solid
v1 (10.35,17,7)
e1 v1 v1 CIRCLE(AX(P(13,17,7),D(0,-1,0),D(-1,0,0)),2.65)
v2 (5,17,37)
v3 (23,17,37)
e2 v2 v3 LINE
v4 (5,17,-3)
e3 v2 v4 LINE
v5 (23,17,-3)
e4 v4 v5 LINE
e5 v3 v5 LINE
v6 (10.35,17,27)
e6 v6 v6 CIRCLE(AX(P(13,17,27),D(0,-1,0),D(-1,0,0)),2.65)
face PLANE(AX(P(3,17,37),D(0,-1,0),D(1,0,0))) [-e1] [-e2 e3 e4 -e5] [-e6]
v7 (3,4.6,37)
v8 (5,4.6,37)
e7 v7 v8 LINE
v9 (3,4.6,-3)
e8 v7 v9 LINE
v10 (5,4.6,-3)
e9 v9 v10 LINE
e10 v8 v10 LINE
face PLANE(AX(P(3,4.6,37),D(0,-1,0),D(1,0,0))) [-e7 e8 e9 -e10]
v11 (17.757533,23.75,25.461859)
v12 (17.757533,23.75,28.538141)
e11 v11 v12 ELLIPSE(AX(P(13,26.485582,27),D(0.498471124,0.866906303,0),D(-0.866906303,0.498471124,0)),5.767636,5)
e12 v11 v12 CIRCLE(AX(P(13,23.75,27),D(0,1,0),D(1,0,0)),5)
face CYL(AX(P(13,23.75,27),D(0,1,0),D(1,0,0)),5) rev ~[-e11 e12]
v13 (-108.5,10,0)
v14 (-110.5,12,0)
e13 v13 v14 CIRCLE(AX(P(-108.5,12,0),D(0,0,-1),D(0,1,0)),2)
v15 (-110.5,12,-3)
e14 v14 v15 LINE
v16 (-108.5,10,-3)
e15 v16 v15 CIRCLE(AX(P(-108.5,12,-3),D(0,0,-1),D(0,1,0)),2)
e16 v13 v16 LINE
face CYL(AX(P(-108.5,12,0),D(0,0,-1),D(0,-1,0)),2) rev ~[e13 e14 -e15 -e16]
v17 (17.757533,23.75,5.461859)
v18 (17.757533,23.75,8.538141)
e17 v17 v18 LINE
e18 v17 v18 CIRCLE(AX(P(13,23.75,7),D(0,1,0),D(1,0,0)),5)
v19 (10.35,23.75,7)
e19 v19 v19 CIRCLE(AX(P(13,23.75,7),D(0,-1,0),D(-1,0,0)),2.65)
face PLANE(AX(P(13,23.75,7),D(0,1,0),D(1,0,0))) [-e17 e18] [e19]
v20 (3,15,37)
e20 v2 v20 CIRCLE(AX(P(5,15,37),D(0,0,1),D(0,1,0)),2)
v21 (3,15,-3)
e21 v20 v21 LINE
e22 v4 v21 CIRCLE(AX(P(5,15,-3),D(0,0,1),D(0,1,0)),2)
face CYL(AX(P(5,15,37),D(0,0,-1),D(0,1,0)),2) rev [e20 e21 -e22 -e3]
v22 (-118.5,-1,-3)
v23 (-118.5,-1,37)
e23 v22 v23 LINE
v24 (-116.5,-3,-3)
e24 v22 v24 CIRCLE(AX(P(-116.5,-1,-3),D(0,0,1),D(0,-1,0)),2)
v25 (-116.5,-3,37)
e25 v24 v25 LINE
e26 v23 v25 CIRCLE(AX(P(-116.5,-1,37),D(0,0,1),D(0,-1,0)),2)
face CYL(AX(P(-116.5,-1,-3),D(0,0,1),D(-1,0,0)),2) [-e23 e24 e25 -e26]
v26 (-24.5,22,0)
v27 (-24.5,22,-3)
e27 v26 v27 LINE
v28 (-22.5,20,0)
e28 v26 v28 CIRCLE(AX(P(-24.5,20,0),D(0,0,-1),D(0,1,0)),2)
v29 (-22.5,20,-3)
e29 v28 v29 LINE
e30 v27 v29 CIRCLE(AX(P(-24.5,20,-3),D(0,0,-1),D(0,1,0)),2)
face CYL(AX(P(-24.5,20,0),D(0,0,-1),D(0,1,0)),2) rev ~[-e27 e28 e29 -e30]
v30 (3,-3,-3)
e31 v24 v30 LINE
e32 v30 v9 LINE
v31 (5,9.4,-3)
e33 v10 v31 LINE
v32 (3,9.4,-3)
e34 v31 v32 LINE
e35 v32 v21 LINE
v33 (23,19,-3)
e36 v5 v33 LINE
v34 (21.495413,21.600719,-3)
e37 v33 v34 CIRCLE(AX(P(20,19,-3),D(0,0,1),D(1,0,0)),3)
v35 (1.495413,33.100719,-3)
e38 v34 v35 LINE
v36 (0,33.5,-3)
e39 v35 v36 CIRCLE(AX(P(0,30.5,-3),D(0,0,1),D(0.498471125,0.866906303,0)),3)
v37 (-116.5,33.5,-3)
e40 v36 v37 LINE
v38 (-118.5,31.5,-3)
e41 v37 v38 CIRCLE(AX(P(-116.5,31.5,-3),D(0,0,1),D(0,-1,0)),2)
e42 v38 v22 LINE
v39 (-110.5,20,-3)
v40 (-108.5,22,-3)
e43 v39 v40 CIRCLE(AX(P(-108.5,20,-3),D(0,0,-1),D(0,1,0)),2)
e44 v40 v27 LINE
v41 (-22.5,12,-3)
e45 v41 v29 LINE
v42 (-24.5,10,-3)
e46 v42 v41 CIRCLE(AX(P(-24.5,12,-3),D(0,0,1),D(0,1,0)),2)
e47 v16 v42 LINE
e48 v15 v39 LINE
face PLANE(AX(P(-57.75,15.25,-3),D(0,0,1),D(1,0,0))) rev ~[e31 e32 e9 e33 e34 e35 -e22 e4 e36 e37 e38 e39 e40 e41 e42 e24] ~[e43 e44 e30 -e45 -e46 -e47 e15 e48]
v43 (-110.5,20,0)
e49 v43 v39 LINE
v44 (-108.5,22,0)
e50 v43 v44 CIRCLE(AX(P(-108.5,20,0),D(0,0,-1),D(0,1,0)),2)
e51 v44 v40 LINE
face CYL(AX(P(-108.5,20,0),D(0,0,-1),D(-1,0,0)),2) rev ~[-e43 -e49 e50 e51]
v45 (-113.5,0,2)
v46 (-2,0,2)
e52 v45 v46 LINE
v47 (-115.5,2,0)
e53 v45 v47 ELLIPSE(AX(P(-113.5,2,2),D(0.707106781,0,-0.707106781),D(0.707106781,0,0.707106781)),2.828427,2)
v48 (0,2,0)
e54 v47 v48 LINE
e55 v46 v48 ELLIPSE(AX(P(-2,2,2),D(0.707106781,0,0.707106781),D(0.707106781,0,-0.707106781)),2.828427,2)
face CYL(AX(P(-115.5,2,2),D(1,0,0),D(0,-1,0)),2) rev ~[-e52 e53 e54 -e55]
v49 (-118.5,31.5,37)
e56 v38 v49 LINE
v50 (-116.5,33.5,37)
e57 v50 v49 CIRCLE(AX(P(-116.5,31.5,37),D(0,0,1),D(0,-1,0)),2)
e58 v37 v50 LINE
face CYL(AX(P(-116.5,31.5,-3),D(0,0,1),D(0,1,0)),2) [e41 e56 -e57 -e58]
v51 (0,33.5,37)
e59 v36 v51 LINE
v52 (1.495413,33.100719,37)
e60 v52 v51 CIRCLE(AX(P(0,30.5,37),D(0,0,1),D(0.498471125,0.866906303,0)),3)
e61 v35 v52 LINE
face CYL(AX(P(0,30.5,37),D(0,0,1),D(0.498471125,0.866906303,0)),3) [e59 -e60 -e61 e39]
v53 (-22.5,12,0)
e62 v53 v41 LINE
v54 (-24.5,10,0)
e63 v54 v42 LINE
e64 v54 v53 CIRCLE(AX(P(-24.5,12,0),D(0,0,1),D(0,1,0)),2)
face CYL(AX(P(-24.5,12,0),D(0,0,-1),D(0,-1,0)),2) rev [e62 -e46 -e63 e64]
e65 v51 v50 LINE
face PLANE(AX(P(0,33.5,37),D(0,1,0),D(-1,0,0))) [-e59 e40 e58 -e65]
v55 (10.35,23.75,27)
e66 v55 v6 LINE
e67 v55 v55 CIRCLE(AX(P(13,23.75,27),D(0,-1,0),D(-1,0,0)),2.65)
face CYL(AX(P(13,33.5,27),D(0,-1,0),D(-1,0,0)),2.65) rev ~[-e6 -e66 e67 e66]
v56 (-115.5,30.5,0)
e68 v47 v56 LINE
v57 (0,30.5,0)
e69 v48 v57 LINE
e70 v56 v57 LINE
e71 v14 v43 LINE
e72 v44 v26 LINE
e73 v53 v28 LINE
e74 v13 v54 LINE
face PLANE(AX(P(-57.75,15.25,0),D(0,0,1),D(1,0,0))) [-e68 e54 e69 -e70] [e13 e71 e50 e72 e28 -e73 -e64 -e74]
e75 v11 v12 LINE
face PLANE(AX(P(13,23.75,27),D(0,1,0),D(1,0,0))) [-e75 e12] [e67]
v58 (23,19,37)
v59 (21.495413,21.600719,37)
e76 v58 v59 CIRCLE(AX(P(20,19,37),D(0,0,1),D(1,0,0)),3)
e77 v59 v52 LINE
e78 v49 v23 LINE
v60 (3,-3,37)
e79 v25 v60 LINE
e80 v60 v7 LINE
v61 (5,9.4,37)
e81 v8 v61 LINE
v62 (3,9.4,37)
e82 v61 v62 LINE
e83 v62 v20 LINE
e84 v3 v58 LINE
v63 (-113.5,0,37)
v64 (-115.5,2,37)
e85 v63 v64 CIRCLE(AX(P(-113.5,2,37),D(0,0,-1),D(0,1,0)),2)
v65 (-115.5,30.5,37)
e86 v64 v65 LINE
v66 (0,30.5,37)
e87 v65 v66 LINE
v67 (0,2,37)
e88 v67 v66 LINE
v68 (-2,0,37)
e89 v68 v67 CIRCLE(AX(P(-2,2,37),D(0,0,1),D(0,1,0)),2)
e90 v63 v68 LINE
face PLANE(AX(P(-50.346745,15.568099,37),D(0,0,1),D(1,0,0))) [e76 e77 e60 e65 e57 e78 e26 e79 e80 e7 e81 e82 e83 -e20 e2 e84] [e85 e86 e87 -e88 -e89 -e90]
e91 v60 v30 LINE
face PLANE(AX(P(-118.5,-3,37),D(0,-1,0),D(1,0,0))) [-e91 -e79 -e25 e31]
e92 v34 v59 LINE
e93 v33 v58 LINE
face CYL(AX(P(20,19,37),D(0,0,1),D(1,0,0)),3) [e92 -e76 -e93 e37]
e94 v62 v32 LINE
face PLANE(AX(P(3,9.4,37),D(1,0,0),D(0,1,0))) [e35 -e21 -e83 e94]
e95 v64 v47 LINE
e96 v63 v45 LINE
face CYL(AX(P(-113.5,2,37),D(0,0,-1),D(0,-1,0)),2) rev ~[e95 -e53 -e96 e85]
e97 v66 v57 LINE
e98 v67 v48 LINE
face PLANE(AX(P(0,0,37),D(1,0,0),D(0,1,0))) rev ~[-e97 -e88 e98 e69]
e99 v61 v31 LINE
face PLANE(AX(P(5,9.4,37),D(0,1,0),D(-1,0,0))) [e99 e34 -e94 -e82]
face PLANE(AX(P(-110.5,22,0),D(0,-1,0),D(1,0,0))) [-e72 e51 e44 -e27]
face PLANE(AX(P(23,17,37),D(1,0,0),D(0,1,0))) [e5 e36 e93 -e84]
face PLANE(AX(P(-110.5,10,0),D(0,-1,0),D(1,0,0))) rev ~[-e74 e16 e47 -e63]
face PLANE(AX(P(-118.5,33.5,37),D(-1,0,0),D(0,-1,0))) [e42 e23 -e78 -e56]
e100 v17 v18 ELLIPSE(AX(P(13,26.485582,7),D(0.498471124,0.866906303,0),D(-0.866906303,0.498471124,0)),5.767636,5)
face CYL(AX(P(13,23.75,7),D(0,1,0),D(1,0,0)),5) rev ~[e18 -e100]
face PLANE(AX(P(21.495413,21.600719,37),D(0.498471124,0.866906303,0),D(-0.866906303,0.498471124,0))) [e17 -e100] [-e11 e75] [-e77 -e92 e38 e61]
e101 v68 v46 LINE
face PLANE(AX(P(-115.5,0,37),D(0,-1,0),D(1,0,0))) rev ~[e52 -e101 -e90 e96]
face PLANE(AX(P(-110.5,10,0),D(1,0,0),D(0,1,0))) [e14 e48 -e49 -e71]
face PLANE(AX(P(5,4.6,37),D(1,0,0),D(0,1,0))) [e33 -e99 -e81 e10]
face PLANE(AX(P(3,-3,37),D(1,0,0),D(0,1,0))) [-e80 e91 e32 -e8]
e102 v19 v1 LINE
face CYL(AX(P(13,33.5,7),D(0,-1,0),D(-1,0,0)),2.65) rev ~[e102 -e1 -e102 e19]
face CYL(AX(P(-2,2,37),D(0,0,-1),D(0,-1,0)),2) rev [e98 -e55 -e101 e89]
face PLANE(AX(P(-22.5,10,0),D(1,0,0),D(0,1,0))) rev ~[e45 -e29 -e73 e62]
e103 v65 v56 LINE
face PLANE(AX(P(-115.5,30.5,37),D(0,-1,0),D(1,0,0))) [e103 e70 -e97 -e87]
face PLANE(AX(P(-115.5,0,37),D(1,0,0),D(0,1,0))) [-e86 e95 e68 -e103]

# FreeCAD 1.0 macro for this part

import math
import FreeCAD as App
import Part
import Sketcher
from FreeCAD import Vector


def edges_at(feature, points):
    """Names of the edges that pass closest to the given points."""
    edges = feature.Shape.Edges
    near = lambda p: min(range(len(edges)), key=lambda i: edges[i].distToShape(Part.Vertex(*p))[0])
    return sorted({f"Edge{near(p) + 1}" for p in points})


def add_polygon(sketch, points):
    """Adds a closed chain of lines whose ends are joined by coincident constraints."""
    first, n = sketch.GeometryCount, len(points)
    for a, b in zip(points, points[1:] + points[:1]):
        sketch.addGeometry(Part.LineSegment(App.Vector(*a, 0), App.Vector(*b, 0)), False)
    for i in range(n):
        sketch.addConstraint(Sketcher.Constraint("Coincident", first + i, 2, first + (i + 1) % n, 1))

doc = App.newDocument("Part")
body = doc.addObject("PartDesign::Body", "Body")

sketch1 = body.newObject("Sketcher::SketchObject", "Sketch")
sketch1.AttachmentSupport = (doc.getObject("XY_Plane"), [""])
sketch1.MapMode = "FlatFace"
sketch1.addGeometry(Part.LineSegment(Vector(23, 17, 0), Vector(23, 19, 0)), False)
sketch1.addGeometry(Part.ArcOfCircle(Part.Circle(Vector(20, 19, 0), Vector(0, 0, 1), 3), math.radians(0), math.radians(60)), False)
sketch1.addGeometry(Part.LineSegment(Vector(21.5, 21.6, 0), Vector(1.5, 33.1, 0)), False)
sketch1.addGeometry(Part.ArcOfCircle(Part.Circle(Vector(0, 30.5, 0), Vector(0, 0, 1), 3), math.radians(60), math.radians(90)), False)
sketch1.addGeometry(Part.LineSegment(Vector(0, 33.5, 0), Vector(-118.5, 33.5, 0)), False)
sketch1.addGeometry(Part.LineSegment(Vector(-118.5, 33.5, 0), Vector(-118.5, -3, 0)), False)
sketch1.addGeometry(Part.LineSegment(Vector(-118.5, -3, 0), Vector(3, -3, 0)), False)
sketch1.addGeometry(Part.LineSegment(Vector(3, -3, 0), Vector(3, 4.6, 0)), False)
sketch1.addGeometry(Part.LineSegment(Vector(3, 4.6, 0), Vector(5, 4.6, 0)), False)
sketch1.addGeometry(Part.LineSegment(Vector(5, 4.6, 0), Vector(5, 9.4, 0)), False)
sketch1.addGeometry(Part.LineSegment(Vector(5, 9.4, 0), Vector(3, 9.4, 0)), False)
sketch1.addGeometry(Part.LineSegment(Vector(3, 9.4, 0), Vector(3, 17, 0)), False)
sketch1.addGeometry(Part.LineSegment(Vector(3, 17, 0), Vector(23, 17, 0)), False)
add_polygon(sketch1, [(-22.5, 10), (-110.5, 10), (-110.5, 22), (-22.5, 22)])
sketch1.addConstraint(Sketcher.Constraint("Tangent", 0, 2, 1, 1))
sketch1.addConstraint(Sketcher.Constraint("Tangent", 1, 2, 2, 1))
sketch1.addConstraint(Sketcher.Constraint("Tangent", 2, 2, 3, 1))
sketch1.addConstraint(Sketcher.Constraint("Tangent", 3, 2, 4, 1))
sketch1.addConstraint(Sketcher.Constraint("Coincident", 4, 2, 5, 1))
sketch1.addConstraint(Sketcher.Constraint("Coincident", 5, 2, 6, 1))
sketch1.addConstraint(Sketcher.Constraint("Coincident", 6, 2, 7, 1))
sketch1.addConstraint(Sketcher.Constraint("Coincident", 7, 2, 8, 1))
sketch1.addConstraint(Sketcher.Constraint("Coincident", 8, 2, 9, 1))
sketch1.addConstraint(Sketcher.Constraint("Coincident", 9, 2, 10, 1))
sketch1.addConstraint(Sketcher.Constraint("Coincident", 10, 2, 11, 1))
sketch1.addConstraint(Sketcher.Constraint("Coincident", 11, 2, 12, 1))
sketch1.addConstraint(Sketcher.Constraint("Coincident", 12, 2, 0, 1))
sketch1.addConstraint(Sketcher.Constraint("Vertical", 0))
sketch1.addConstraint(Sketcher.Constraint("Horizontal", 4))
sketch1.addConstraint(Sketcher.Constraint("Vertical", 5))
sketch1.addConstraint(Sketcher.Constraint("Horizontal", 6))
sketch1.addConstraint(Sketcher.Constraint("Vertical", 7))
sketch1.addConstraint(Sketcher.Constraint("Horizontal", 8))
sketch1.addConstraint(Sketcher.Constraint("Vertical", 9))
sketch1.addConstraint(Sketcher.Constraint("Horizontal", 10))
sketch1.addConstraint(Sketcher.Constraint("Vertical", 11))
sketch1.addConstraint(Sketcher.Constraint("Horizontal", 12))
sketch1.addConstraint(Sketcher.Constraint("Horizontal", 13))
sketch1.addConstraint(Sketcher.Constraint("Vertical", 14))
sketch1.addConstraint(Sketcher.Constraint("Horizontal", 15))
sketch1.addConstraint(Sketcher.Constraint("Vertical", 16))
sketch1.addConstraint(Sketcher.Constraint("Equal", 1, 3))
sketch1.addConstraint(Sketcher.Constraint("PointOnObject", 3, 3, -2))
sketch1.addConstraint(Sketcher.Constraint("Vertical", 7, 2, 10, 2))
sketch1.addConstraint(Sketcher.Constraint("Equal", 10, 0))
sketch1.addConstraint(Sketcher.Constraint("Equal", 7, 11))
sketch1.addConstraint(Sketcher.Constraint("Radius", 1, 3.0))
sketch1.addConstraint(Sketcher.Constraint("DistanceX", 8, 1, 8, 2, 2.0))
sketch1.addConstraint(Sketcher.Constraint("DistanceX", 12, 1, 12, 2, 20.0))
sketch1.addConstraint(Sketcher.Constraint("DistanceX", 13, 2, 13, 1, 88.0))
sketch1.addConstraint(Sketcher.Constraint("DistanceY", 14, 1, 14, 2, 12.0))
sketch1.addConstraint(Sketcher.Constraint("DistanceX", 4, 2, 4, 1, 118.5))
sketch1.addConstraint(Sketcher.Constraint("DistanceX", 6, 1, 6, 2, 121.5))
sketch1.addConstraint(Sketcher.Constraint("DistanceY", 5, 2, 5, 1, 36.5))
sketch1.addConstraint(Sketcher.Constraint("DistanceY", 7, 1, 7, 2, 7.6))
sketch1.addConstraint(Sketcher.Constraint("DistanceY", 9, 1, 9, 2, 4.8))
sketch1.addConstraint(Sketcher.Constraint("DistanceY", -1, 1, 1, 3, 19.0))
sketch1.addConstraint(Sketcher.Constraint("DistanceY", -1, 1, 13, 2, 10.0))
sketch1.addConstraint(Sketcher.Constraint("DistanceX", 5, 2, 13, 2, 8.0))
pad1 = body.newObject("PartDesign::Pad", "Pad")
pad1.Profile = sketch1
pad1.Length = 3
pad1.Reversed = True

sketch2 = body.newObject("Sketcher::SketchObject", "Sketch001")
sketch2.AttachmentSupport = (doc.getObject("XY_Plane"), [""])
sketch2.MapMode = "FlatFace"
sketch2.AttachmentOffset = App.Placement(Vector(0, 0, 37), App.Rotation())
sketch2.addGeometry(Part.LineSegment(Vector(23, 17, 0), Vector(23, 19, 0)), False)
sketch2.addGeometry(Part.ArcOfCircle(Part.Circle(Vector(20, 19, 0), Vector(0, 0, 1), 3), math.radians(0), math.radians(60)), False)
sketch2.addGeometry(Part.LineSegment(Vector(21.5, 21.6, 0), Vector(1.5, 33.1, 0)), False)
sketch2.addGeometry(Part.ArcOfCircle(Part.Circle(Vector(0, 30.5, 0), Vector(0, 0, 1), 3), math.radians(60), math.radians(90)), False)
sketch2.addGeometry(Part.LineSegment(Vector(0, 33.5, 0), Vector(-118.5, 33.5, 0)), False)
sketch2.addGeometry(Part.LineSegment(Vector(-118.5, 33.5, 0), Vector(-118.5, -3, 0)), False)
sketch2.addGeometry(Part.LineSegment(Vector(-118.5, -3, 0), Vector(3, -3, 0)), False)
sketch2.addGeometry(Part.LineSegment(Vector(3, -3, 0), Vector(3, 4.6, 0)), False)
sketch2.addGeometry(Part.LineSegment(Vector(3, 4.6, 0), Vector(5, 4.6, 0)), False)
sketch2.addGeometry(Part.LineSegment(Vector(5, 4.6, 0), Vector(5, 9.4, 0)), False)
sketch2.addGeometry(Part.LineSegment(Vector(5, 9.4, 0), Vector(3, 9.4, 0)), False)
sketch2.addGeometry(Part.LineSegment(Vector(3, 9.4, 0), Vector(3, 17, 0)), False)
sketch2.addGeometry(Part.LineSegment(Vector(3, 17, 0), Vector(23, 17, 0)), False)
add_polygon(sketch2, [(0, 0), (-115.5, 0), (-115.5, 30.5), (0, 30.5)])
sketch2.addConstraint(Sketcher.Constraint("Tangent", 0, 2, 1, 1))
sketch2.addConstraint(Sketcher.Constraint("Tangent", 1, 2, 2, 1))
sketch2.addConstraint(Sketcher.Constraint("Tangent", 2, 2, 3, 1))
sketch2.addConstraint(Sketcher.Constraint("Tangent", 3, 2, 4, 1))
sketch2.addConstraint(Sketcher.Constraint("Coincident", 4, 2, 5, 1))
sketch2.addConstraint(Sketcher.Constraint("Coincident", 5, 2, 6, 1))
sketch2.addConstraint(Sketcher.Constraint("Coincident", 6, 2, 7, 1))
sketch2.addConstraint(Sketcher.Constraint("Coincident", 7, 2, 8, 1))
sketch2.addConstraint(Sketcher.Constraint("Coincident", 8, 2, 9, 1))
sketch2.addConstraint(Sketcher.Constraint("Coincident", 9, 2, 10, 1))
sketch2.addConstraint(Sketcher.Constraint("Coincident", 10, 2, 11, 1))
sketch2.addConstraint(Sketcher.Constraint("Coincident", 11, 2, 12, 1))
sketch2.addConstraint(Sketcher.Constraint("Coincident", 12, 2, 0, 1))
sketch2.addConstraint(Sketcher.Constraint("Vertical", 0))
sketch2.addConstraint(Sketcher.Constraint("Horizontal", 4))
sketch2.addConstraint(Sketcher.Constraint("Vertical", 5))
sketch2.addConstraint(Sketcher.Constraint("Horizontal", 6))
sketch2.addConstraint(Sketcher.Constraint("Vertical", 7))
sketch2.addConstraint(Sketcher.Constraint("Horizontal", 8))
sketch2.addConstraint(Sketcher.Constraint("Vertical", 9))
sketch2.addConstraint(Sketcher.Constraint("Horizontal", 10))
sketch2.addConstraint(Sketcher.Constraint("Vertical", 11))
sketch2.addConstraint(Sketcher.Constraint("Horizontal", 12))
sketch2.addConstraint(Sketcher.Constraint("Horizontal", 13))
sketch2.addConstraint(Sketcher.Constraint("Vertical", 14))
sketch2.addConstraint(Sketcher.Constraint("Horizontal", 15))
sketch2.addConstraint(Sketcher.Constraint("Vertical", 16))
sketch2.addConstraint(Sketcher.Constraint("Coincident", 16, 2, -1, 1))
sketch2.addConstraint(Sketcher.Constraint("Coincident", 15, 2, 3, 3))
sketch2.addConstraint(Sketcher.Constraint("Equal", 1, 3))
sketch2.addConstraint(Sketcher.Constraint("Vertical", 7, 2, 10, 2))
sketch2.addConstraint(Sketcher.Constraint("Equal", 10, 0))
sketch2.addConstraint(Sketcher.Constraint("Equal", 7, 11))
sketch2.addConstraint(Sketcher.Constraint("Radius", 1, 3.0))
sketch2.addConstraint(Sketcher.Constraint("DistanceX", 8, 1, 8, 2, 2.0))
sketch2.addConstraint(Sketcher.Constraint("DistanceX", 12, 1, 12, 2, 20.0))
sketch2.addConstraint(Sketcher.Constraint("DistanceX", 4, 2, 4, 1, 118.5))
sketch2.addConstraint(Sketcher.Constraint("DistanceX", 6, 1, 6, 2, 121.5))
sketch2.addConstraint(Sketcher.Constraint("DistanceX", 13, 2, 13, 1, 115.5))
sketch2.addConstraint(Sketcher.Constraint("DistanceY", 5, 2, 5, 1, 36.5))
sketch2.addConstraint(Sketcher.Constraint("DistanceY", 7, 1, 7, 2, 7.6))
sketch2.addConstraint(Sketcher.Constraint("DistanceY", 9, 1, 9, 2, 4.8))
sketch2.addConstraint(Sketcher.Constraint("DistanceY", 14, 1, 14, 2, 30.5))
pad2 = body.newObject("PartDesign::Pad", "Pad001")
pad2.Profile = sketch2
pad2.Length = 37
pad2.Reversed = True

sketch3 = body.newObject("Sketcher::SketchObject", "Sketch002")
sketch3.AttachmentSupport = (doc.getObject("XZ_Plane"), [""])
sketch3.MapMode = "FlatFace"
sketch3.AttachmentOffset = App.Placement(Vector(0, 0, -33.5), App.Rotation())
sketch3.addGeometry(Part.Circle(Vector(13, 27, 0), Vector(0, 0, 1), 2.6), False)
sketch3.addGeometry(Part.Circle(Vector(13, 7, 0), Vector(0, 0, 1), 2.6), False)
sketch3.addConstraint(Sketcher.Constraint("Equal", 0, 1))
sketch3.addConstraint(Sketcher.Constraint("Vertical", 0, 3, 1, 3))
sketch3.addConstraint(Sketcher.Constraint("Diameter", 0, 5.3))
sketch3.addConstraint(Sketcher.Constraint("DistanceX", -1, 1, 0, 3, 13.0))
sketch3.addConstraint(Sketcher.Constraint("DistanceY", -1, 1, 0, 3, 27.0))
sketch3.addConstraint(Sketcher.Constraint("DistanceY", -1, 1, 1, 3, 7.0))
doc.recompute()
hole = body.newObject("PartDesign::Hole", "Hole")
hole.Profile = sketch3
hole.ThreadType = "None"
hole.Diameter = 5.3
hole.DepthType = "ThroughAll"
hole.HoleCutType = "Counterbore"
hole.HoleCutDiameter = 10
hole.HoleCutDepth = 9.75
hole.Reversed = True
doc.recompute()

fillet = body.newObject("PartDesign::Fillet", "Fillet")
fillet.Base = (hole, edges_at(hole, [
    (-22.5, 22, -1.5),
    (-110.5, 22, -1.5),
    (-110.5, 10, -1.5),
    (-22.5, 10, -1.5),
    (3, 17, 17),
    (-118.5, -3, 17),
    (-118.5, 33.5, 17),
    (0, 0, 18.5),
    (-57.75, 0, 0),
    (-115.5, 0, 18.5),
]))
fillet.Radius = 2

doc.recompute()
